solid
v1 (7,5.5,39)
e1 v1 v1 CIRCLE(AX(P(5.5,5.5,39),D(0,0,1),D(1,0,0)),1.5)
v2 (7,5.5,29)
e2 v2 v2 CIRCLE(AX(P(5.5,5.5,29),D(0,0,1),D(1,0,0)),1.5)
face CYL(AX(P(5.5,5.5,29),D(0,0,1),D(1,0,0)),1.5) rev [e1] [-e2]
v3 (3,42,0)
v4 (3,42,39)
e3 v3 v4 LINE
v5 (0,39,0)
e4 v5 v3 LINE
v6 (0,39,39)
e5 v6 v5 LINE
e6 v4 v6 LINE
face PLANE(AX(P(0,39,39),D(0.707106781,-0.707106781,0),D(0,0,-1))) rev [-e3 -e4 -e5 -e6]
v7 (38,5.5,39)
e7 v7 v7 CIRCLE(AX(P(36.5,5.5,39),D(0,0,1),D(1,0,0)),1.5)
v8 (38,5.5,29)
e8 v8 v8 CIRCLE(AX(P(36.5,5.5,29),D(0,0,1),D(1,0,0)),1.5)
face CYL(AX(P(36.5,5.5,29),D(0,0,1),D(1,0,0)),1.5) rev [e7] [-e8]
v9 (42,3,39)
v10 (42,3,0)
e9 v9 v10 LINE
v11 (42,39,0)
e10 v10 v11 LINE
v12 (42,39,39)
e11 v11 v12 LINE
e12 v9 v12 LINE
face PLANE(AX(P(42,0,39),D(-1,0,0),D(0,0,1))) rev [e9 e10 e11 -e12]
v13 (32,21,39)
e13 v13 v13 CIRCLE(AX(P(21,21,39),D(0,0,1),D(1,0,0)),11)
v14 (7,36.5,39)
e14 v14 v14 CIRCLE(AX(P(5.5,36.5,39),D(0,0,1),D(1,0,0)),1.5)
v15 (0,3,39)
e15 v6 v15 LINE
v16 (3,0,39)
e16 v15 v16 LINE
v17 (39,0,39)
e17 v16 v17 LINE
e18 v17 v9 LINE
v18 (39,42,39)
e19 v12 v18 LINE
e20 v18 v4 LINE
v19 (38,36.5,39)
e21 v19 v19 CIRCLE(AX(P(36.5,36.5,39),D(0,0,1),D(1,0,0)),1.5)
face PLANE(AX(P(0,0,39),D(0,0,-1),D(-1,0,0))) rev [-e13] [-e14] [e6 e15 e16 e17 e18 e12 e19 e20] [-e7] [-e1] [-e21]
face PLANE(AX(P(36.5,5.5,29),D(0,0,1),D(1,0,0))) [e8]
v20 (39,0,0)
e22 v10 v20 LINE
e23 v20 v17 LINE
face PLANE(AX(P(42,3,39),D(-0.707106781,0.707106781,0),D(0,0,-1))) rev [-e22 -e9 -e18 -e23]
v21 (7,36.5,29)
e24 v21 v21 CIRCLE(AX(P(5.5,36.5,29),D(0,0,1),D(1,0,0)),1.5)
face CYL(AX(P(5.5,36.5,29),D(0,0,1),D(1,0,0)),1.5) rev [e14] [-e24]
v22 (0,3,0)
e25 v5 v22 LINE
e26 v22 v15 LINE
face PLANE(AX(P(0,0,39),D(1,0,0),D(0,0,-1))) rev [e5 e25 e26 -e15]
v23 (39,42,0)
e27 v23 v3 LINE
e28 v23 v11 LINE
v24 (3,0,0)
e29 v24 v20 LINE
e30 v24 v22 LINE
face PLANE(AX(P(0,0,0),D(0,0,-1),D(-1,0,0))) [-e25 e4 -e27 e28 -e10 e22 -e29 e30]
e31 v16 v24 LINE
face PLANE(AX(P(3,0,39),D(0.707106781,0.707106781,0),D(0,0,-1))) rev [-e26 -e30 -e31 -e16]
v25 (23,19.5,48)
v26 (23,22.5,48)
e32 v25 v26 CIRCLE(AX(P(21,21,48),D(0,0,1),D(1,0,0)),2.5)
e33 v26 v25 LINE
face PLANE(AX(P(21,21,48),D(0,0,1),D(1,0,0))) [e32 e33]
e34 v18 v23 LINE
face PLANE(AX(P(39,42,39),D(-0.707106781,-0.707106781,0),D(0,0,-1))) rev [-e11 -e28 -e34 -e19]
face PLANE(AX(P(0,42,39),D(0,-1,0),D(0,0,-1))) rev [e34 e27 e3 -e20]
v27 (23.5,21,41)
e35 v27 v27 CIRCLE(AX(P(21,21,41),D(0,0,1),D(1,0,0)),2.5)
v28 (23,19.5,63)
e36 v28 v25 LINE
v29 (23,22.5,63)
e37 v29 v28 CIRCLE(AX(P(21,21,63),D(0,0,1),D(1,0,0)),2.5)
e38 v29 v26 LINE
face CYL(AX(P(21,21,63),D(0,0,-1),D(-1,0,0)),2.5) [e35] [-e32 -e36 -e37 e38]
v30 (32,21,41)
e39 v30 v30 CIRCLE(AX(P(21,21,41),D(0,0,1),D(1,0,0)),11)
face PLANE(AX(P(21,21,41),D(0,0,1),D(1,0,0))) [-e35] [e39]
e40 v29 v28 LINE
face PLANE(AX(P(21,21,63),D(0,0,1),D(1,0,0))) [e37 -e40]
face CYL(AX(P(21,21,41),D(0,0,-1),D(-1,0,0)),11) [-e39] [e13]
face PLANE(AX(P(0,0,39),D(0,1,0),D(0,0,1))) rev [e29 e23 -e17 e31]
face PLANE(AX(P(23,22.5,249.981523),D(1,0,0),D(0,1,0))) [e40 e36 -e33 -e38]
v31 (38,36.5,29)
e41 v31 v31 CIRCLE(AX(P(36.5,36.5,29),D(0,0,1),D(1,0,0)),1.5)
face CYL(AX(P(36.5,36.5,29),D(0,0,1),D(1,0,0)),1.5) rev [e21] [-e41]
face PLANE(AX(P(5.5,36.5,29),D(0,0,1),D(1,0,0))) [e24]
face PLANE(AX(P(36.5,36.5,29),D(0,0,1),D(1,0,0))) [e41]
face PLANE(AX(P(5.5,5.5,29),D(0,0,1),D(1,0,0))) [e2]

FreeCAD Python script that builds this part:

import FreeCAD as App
import Part
import Sketcher


def edges_at(feature, points):
    """Names of the edges that pass closest to the given points."""
    edges = feature.Shape.Edges
    near = lambda p: min(range(len(edges)), key=lambda i: edges[i].distToShape(Part.Vertex(*p))[0])
    return sorted({f"Edge{near(p) + 1}" for p in points})

doc = App.newDocument("Part")
body = doc.addObject("PartDesign::Body", "Body")

# Sketch on XY plane
sketch1 = body.newObject("Sketcher::SketchObject", "Sketch")
sketch1.AttachmentSupport = (doc.getObject("XY_Plane"), [""])
sketch1.MapMode = "FlatFace"
sketch1.addGeometry([
    Part.LineSegment(App.Vector(0, 42, 0), App.Vector(0, 0, 0)),
    Part.LineSegment(App.Vector(0, 0, 0), App.Vector(42, 0, 0)),
    Part.LineSegment(App.Vector(42, 0, 0), App.Vector(42, 42, 0)),
    Part.LineSegment(App.Vector(42, 42, 0), App.Vector(0, 42, 0)),
], False)
sketch1.addConstraint([
    Sketcher.Constraint("Coincident", 0, 2, 1, 1),
    Sketcher.Constraint("Coincident", 1, 2, 2, 1),
    Sketcher.Constraint("Coincident", 2, 2, 3, 1),
    Sketcher.Constraint("Coincident", 3, 2, 0, 1),
    Sketcher.Constraint("Vertical", 0),
    Sketcher.Constraint("Horizontal", 1),
    Sketcher.Constraint("Vertical", 2),
    Sketcher.Constraint("Horizontal", 3),
    Sketcher.Constraint("Coincident", 0, 2, -1, 1),
    Sketcher.Constraint("Equal", 3, 0),
    Sketcher.Constraint("DistanceX", 1, 1, 1, 2, 42.0),
])
pad1 = body.newObject("PartDesign::Pad", "Pad")
pad1.Profile = sketch1
pad1.Length = 39

# Sketch on XY plane
sketch2 = body.newObject("Sketcher::SketchObject", "Sketch001")
sketch2.AttachmentSupport = (doc.getObject("XY_Plane"), [""])
sketch2.MapMode = "FlatFace"
sketch2.AttachmentOffset = App.Placement(App.Vector(0, 0, 39), App.Rotation())
sketch2.addGeometry(Part.Circle(App.Vector(21, 21, 0), App.Vector(0, 0, 1), 11), False)
sketch2.addConstraint([
    Sketcher.Constraint("Diameter", 0, 22.0),
    Sketcher.Constraint("DistanceX", -1, 1, 0, 3, 21.0),
    Sketcher.Constraint("DistanceY", -1, 1, 0, 3, 21.0),
])
pad2 = body.newObject("PartDesign::Pad", "Pad001")
pad2.Profile = sketch2
pad2.Length = 2

# Sketch on XY plane
sketch3 = body.newObject("Sketcher::SketchObject", "Sketch002")
sketch3.AttachmentSupport = (doc.getObject("XY_Plane"), [""])
sketch3.MapMode = "FlatFace"
sketch3.AttachmentOffset = App.Placement(App.Vector(0, 0, 41), App.Rotation())
sketch3.addGeometry(Part.Circle(App.Vector(21, 21, 0), App.Vector(0, 0, 1), 2.5), False)
sketch3.addConstraint([
    Sketcher.Constraint("Diameter", 0, 5.0),
    Sketcher.Constraint("DistanceX", -1, 1, 0, 3, 21.0),
    Sketcher.Constraint("DistanceY", -1, 1, 0, 3, 21.0),
])
pad3 = body.newObject("PartDesign::Pad", "Pad002")
pad3.Profile = sketch3
pad3.Length = 22
doc.recompute()

chamfer = body.newObject("PartDesign::Chamfer", "Chamfer")
chamfer.Base = (pad3, edges_at(pad3, [
    (0, 42, 19.5),
    (42, 42, 19.5),
    (42, 0, 19.5),
    (0, 0, 19.5),
]))
chamfer.Size = 3

# Sketch on XY plane
sketch4 = body.newObject("Sketcher::SketchObject", "Sketch003")
sketch4.AttachmentSupport = (doc.getObject("XY_Plane"), [""])
sketch4.MapMode = "FlatFace"
sketch4.AttachmentOffset = App.Placement(App.Vector(0, 0, 39), App.Rotation())
sketch4.addGeometry([
    Part.Circle(App.Vector(5.5, 36.5, 0), App.Vector(0, 0, 1), 1.5),
    Part.Circle(App.Vector(5.5, 5.5, 0), App.Vector(0, 0, 1), 1.5),
    Part.Circle(App.Vector(36.5, 5.5, 0), App.Vector(0, 0, 1), 1.5),
    Part.Circle(App.Vector(36.5, 36.5, 0), App.Vector(0, 0, 1), 1.5),
], False)
sketch4.addConstraint([
    Sketcher.Constraint("Equal", 0, 1),
    Sketcher.Constraint("Equal", 1, 2),
    Sketcher.Constraint("Equal", 2, 3),
    Sketcher.Constraint("Horizontal", 1, 3, 2, 3),
    Sketcher.Constraint("Horizontal", 0, 3, 3, 3),
    Sketcher.Constraint("Vertical", 0, 3, 1, 3),
    Sketcher.Constraint("Vertical", 2, 3, 3, 3),
    Sketcher.Constraint("Diameter", 0, 3.0),
    Sketcher.Constraint("DistanceY", 1, 3, 0, 3, 31.0),
    Sketcher.Constraint("DistanceX", 1, 3, 2, 3, 31.0),
    Sketcher.Constraint("DistanceX", -1, 1, 0, 3, 5.5),
    Sketcher.Constraint("DistanceY", -1, 1, 0, 3, 36.5),
])
pocket1 = body.newObject("PartDesign::Pocket", "Pocket")
pocket1.Profile = sketch4
pocket1.Length = 10

# Sketch on XY plane
sketch5 = body.newObject("Sketcher::SketchObject", "Sketch004")
sketch5.AttachmentSupport = (doc.getObject("XY_Plane"), [""])
sketch5.MapMode = "FlatFace"
sketch5.AttachmentOffset = App.Placement(App.Vector(0, 0, 63), App.Rotation())
sketch5.addGeometry([
    Part.LineSegment(App.Vector(23, 97, 0), App.Vector(23, -55, 0)),
    Part.LineSegment(App.Vector(23, -55, 0), App.Vector(172, -55, 0)),
    Part.LineSegment(App.Vector(172, -55, 0), App.Vector(172, 97, 0)),
    Part.LineSegment(App.Vector(172, 97, 0), App.Vector(23, 97, 0)),
], False)
sketch5.addConstraint([
    Sketcher.Constraint("Coincident", 0, 2, 1, 1),
    Sketcher.Constraint("Coincident", 1, 2, 2, 1),
    Sketcher.Constraint("Coincident", 2, 2, 3, 1),
    Sketcher.Constraint("Coincident", 3, 2, 0, 1),
    Sketcher.Constraint("Vertical", 0),
    Sketcher.Constraint("Horizontal", 1),
    Sketcher.Constraint("Vertical", 2),
    Sketcher.Constraint("Horizontal", 3),
    Sketcher.Constraint("DistanceX", -1, 1, 0, 2, 23.0),
    Sketcher.Constraint("DistanceX", 1, 1, 1, 2, 148.701204),
    Sketcher.Constraint("DistanceY", 0, 2, 0, 1, 151.701204),
    Sketcher.Constraint("DistanceY", 0, 2, -1, 1, 54.850602),
])
pocket2 = body.newObject("PartDesign::Pocket", "Pocket001")
pocket2.Profile = sketch5
pocket2.Type = "TwoLengths"
pocket2.Length = 87.585218
pocket2.Length2 = 15
pocket2.Reversed = True

doc.recompute()
